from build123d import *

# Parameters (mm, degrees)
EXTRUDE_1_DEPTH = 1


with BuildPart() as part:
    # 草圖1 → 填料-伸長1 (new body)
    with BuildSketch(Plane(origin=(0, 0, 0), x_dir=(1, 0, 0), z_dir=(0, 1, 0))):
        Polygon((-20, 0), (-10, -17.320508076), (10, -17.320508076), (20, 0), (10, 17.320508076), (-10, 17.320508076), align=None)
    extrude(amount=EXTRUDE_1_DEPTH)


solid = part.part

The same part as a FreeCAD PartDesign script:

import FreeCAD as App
import Part
import Sketcher
Q = App.Units.Quantity

doc = App.newDocument("Part")
body = doc.addObject("PartDesign::Body", "Body")

# Sketch on XZ plane
sketch1 = body.newObject("Sketcher::SketchObject", "Sketch")
sketch1.AttachmentSupport = (doc.getObject("XZ_Plane"), [""])
sketch1.MapMode = "FlatFace"
sketch1.addGeometry([
    Part.LineSegment(App.Vector(-20, 0, 0), App.Vector(-10, 17, 0)),  # 0
    Part.LineSegment(App.Vector(-10, 17, 0), App.Vector(10, 17, 0)),  # 1
    Part.LineSegment(App.Vector(10, 17, 0), App.Vector(20, 0, 0)),  # 2
    Part.LineSegment(App.Vector(20, 0, 0), App.Vector(10, -17, 0)),  # 3
    Part.LineSegment(App.Vector(10, -17, 0), App.Vector(-10, -17, 0)),  # 4
    Part.LineSegment(App.Vector(-10, -17, 0), App.Vector(-20, 0, 0)),  # 5
], False)
sketch1.addConstraint([
    Sketcher.Constraint("Coincident", 0, 2, 1, 1),
    Sketcher.Constraint("Coincident", 1, 2, 2, 1),
    Sketcher.Constraint("Coincident", 2, 2, 3, 1),
    Sketcher.Constraint("Coincident", 3, 2, 4, 1),
    Sketcher.Constraint("Coincident", 4, 2, 5, 1),
    Sketcher.Constraint("Coincident", 5, 2, 0, 1),
    Sketcher.Constraint("Horizontal", 1),
    Sketcher.Constraint("Horizontal", 4),
    Sketcher.Constraint("Symmetric", 0, 2, 3, 2, -1, 1),
    Sketcher.Constraint("Symmetric", 2, 2, 5, 2, -1, 1),
    Sketcher.Constraint("PointOnObject", 2, 2, -1),
    Sketcher.Constraint("Parallel", 2, 5),
    Sketcher.Constraint("Vertical", 1, 2, 3, 2),
    Sketcher.Constraint("DistanceX", 1, 1, 1, 2, 20.0),
    Sketcher.Constraint("Angle", 0, Q("60 deg")),
    Sketcher.Constraint("Distance", 0, 20.0),
])
pad1 = body.newObject("PartDesign::Pad", "Pad")
pad1.Profile = sketch1
pad1.Length = 1
pad1.Reversed = True

doc.recompute()
